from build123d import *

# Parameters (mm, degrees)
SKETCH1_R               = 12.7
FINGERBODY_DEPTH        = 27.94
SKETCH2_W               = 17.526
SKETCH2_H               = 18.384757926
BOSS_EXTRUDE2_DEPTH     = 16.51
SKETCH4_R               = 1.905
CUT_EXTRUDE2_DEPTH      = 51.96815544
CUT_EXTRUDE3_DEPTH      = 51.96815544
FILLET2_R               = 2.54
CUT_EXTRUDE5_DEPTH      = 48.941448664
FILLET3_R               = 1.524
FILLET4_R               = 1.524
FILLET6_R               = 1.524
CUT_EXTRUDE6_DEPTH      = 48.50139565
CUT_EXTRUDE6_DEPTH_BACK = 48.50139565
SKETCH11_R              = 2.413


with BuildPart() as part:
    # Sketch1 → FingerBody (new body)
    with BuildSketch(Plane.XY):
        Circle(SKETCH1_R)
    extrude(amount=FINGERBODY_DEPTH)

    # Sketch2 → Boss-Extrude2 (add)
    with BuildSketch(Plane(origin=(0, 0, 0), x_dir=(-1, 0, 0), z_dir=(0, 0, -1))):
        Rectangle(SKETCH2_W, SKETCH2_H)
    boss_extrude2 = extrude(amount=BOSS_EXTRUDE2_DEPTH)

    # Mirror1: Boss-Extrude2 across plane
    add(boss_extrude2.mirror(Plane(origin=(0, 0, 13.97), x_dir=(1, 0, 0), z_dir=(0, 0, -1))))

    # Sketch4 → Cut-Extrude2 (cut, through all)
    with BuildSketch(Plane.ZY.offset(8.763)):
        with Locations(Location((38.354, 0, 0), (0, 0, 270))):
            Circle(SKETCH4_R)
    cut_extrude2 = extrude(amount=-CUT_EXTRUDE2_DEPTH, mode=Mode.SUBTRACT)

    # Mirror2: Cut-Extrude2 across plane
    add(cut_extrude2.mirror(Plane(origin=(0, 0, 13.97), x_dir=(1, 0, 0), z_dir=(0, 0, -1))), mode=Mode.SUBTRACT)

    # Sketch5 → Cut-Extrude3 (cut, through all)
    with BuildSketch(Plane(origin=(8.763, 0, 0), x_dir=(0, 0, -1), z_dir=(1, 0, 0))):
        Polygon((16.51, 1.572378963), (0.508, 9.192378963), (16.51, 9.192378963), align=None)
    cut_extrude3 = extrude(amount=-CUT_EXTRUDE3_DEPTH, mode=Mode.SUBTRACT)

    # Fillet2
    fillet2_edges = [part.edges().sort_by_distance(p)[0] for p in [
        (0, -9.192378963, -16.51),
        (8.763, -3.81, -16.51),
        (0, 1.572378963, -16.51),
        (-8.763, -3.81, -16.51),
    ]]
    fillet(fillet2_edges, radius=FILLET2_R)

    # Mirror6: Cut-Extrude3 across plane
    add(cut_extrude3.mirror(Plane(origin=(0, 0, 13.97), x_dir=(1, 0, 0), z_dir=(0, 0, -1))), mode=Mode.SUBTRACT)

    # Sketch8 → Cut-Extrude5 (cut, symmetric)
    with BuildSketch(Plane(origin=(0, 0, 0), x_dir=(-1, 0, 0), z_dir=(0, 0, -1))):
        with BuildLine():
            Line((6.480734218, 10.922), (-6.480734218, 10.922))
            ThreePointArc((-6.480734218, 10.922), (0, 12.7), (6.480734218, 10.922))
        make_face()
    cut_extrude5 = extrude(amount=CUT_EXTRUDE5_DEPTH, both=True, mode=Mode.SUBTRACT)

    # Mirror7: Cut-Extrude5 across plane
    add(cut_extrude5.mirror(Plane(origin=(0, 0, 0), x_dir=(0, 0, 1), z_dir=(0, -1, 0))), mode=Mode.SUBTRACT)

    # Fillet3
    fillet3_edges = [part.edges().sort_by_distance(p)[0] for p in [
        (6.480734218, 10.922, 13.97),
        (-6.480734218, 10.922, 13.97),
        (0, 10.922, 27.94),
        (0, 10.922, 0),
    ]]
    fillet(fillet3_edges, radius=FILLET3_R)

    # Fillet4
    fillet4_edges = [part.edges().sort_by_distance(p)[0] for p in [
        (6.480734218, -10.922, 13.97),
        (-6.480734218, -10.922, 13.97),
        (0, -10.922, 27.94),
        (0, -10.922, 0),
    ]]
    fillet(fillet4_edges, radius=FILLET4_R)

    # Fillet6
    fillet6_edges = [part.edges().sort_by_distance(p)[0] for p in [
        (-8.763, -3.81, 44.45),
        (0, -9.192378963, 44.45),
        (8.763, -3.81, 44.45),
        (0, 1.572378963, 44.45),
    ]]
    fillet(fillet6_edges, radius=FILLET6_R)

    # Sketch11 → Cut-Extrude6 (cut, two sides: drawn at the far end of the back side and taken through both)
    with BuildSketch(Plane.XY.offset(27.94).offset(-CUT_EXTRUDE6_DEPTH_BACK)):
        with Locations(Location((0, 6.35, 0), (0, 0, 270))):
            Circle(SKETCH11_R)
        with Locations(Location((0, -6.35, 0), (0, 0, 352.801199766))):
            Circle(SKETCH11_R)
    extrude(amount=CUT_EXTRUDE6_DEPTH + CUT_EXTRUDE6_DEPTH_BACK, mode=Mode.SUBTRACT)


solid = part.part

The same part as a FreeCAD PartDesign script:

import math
import FreeCAD as App
import Part
import Sketcher
from FreeCAD import Vector
Q = App.Units.Quantity


def edges_at(feature, points):
    """Names of the edges that pass closest to the given points."""
    edges = feature.Shape.Edges
    near = lambda p: min(range(len(edges)), key=lambda i: edges[i].distToShape(Part.Vertex(*p))[0])
    return sorted({f"Edge{near(p) + 1}" for p in points})

doc = App.newDocument("Part")
body = doc.addObject("PartDesign::Body", "Body")

# Sketch on XY plane
sketch1 = body.newObject("Sketcher::SketchObject", "Sketch")
sketch1.AttachmentSupport = (doc.getObject("XY_Plane"), [""])
sketch1.MapMode = "FlatFace"
sketch1.addGeometry(Part.Circle(Vector(0, 0, 0), Vector(0, 0, 1), 13), False)
sketch1.addConstraint([
    Sketcher.Constraint("Coincident", 0, 3, -1, 1),
    Sketcher.Constraint("Diameter", 0, Q("1 in")),
])
pad1 = body.newObject("PartDesign::Pad", "Pad")
pad1.Profile = sketch1
pad1.Length = Q("1.1 in")

# Sketch on XY plane
sketch2 = body.newObject("Sketcher::SketchObject", "Sketch001")
sketch2.AttachmentSupport = (doc.getObject("XY_Plane"), [""])
sketch2.MapMode = "FlatFace"
sketch2.addGeometry([
    Part.LineSegment(Vector(9, 9, 0), Vector(9, -9, 0)),
    Part.LineSegment(Vector(9, -9, 0), Vector(-9, -9, 0)),
    Part.LineSegment(Vector(-9, -9, 0), Vector(-9, 9, 0)),
    Part.LineSegment(Vector(-9, 9, 0), Vector(9, 9, 0)),
], False)
sketch2.addConstraint([
    Sketcher.Constraint("Coincident", 0, 2, 1, 1),
    Sketcher.Constraint("Coincident", 1, 2, 2, 1),
    Sketcher.Constraint("Coincident", 2, 2, 3, 1),
    Sketcher.Constraint("Coincident", 3, 2, 0, 1),
    Sketcher.Constraint("Vertical", 0),
    Sketcher.Constraint("Horizontal", 1),
    Sketcher.Constraint("Vertical", 2),
    Sketcher.Constraint("Horizontal", 3),
    Sketcher.Constraint("Symmetric", 0, 2, 2, 2, -1, 1),
    Sketcher.Constraint("DistanceX", 1, 2, 1, 1, Q("0.69 in")),
    Sketcher.Constraint("DistanceY", 0, 2, 0, 1, 18.384758),
])
pad2 = body.newObject("PartDesign::Pad", "Pad001")
pad2.Profile = sketch2
pad2.Length = Q("0.65 in")
pad2.Reversed = True
doc.recompute()

datumplane = body.newObject("PartDesign::Plane", "DatumPlane")
datumplane.AttachmentSupport = (doc.getObject("XY_Plane"), [""])
datumplane.MapMode = "FlatFace"
datumplane.AttachmentOffset = App.Placement(Vector(0, 0, 0.55 * 25.4), App.Rotation())
mirrored = body.newObject("PartDesign::Mirrored", "Mirrored")
mirrored.Originals = [pad2]
mirrored.MirrorPlane = (datumplane, [""])
body.Tip = mirrored

# Sketch on YZ plane
sketch3 = body.newObject("Sketcher::SketchObject", "Sketch002")
sketch3.AttachmentSupport = (doc.getObject("YZ_Plane"), [""])
sketch3.MapMode = "FlatFace"
sketch3.AttachmentOffset = App.Placement(Vector(0, 0, -0.345 * 25.4), App.Rotation())
sketch3.addGeometry(Part.Circle(Vector(0, 38.4, 0), Vector(0, 0, 1), 1.9), False)
sketch3.addConstraint([
    Sketcher.Constraint("PointOnObject", 0, 3, -2),
    Sketcher.Constraint("Diameter", 0, Q("0.15 in")),
    Sketcher.Constraint("DistanceY", -1, 1, 0, 3, Q("1.51 in")),
])
pocket1 = body.newObject("PartDesign::Pocket", "Pocket")
pocket1.Profile = sketch3
pocket1.Type = "ThroughAll"
pocket1.Reversed = True
doc.recompute()

datumplane2 = body.newObject("PartDesign::Plane", "DatumPlane001")
datumplane2.AttachmentSupport = (doc.getObject("XY_Plane"), [""])
datumplane2.MapMode = "FlatFace"
datumplane2.AttachmentOffset = App.Placement(Vector(0, 0, 0.55 * 25.4), App.Rotation())
mirrored2 = body.newObject("PartDesign::Mirrored", "Mirrored001")
mirrored2.Originals = [pocket1]
mirrored2.MirrorPlane = (datumplane2, [""])
body.Tip = mirrored2

# Sketch on YZ plane
sketch4 = body.newObject("Sketcher::SketchObject", "Sketch003")
sketch4.AttachmentSupport = (doc.getObject("YZ_Plane"), [""])
sketch4.MapMode = "FlatFace"
sketch4.AttachmentOffset = App.Placement(Vector(0, 0, 0.345 * 25.4), App.Rotation())
sketch4.addGeometry([
    Part.LineSegment(Vector(9, -1, 0), Vector(2, -17, 0)),
    Part.LineSegment(Vector(2, -17, 0), Vector(9, -17, 0)),
    Part.LineSegment(Vector(9, -17, 0), Vector(9, -1, 0)),
], False)
sketch4.addConstraint([
    Sketcher.Constraint("Coincident", 0, 2, 1, 1),
    Sketcher.Constraint("Coincident", 1, 2, 2, 1),
    Sketcher.Constraint("Coincident", 2, 2, 0, 1),
    Sketcher.Constraint("Horizontal", 1),
    Sketcher.Constraint("Vertical", 2),
    Sketcher.Constraint("DistanceX", 1, 1, 1, 2, Q("0.3 in")),
    Sketcher.Constraint("DistanceY", 2, 1, 2, 2, Q("0.63 in")),
    Sketcher.Constraint("DistanceY", 0, 2, -1, 1, Q("0.65 in")),
    Sketcher.Constraint("DistanceX", -1, 1, 0, 2, 1.572379),
])
pocket2 = body.newObject("PartDesign::Pocket", "Pocket001")
pocket2.Profile = sketch4
pocket2.Type = "ThroughAll"
doc.recompute()

fillet = body.newObject("PartDesign::Fillet", "Fillet")
fillet.Base = (pocket2, edges_at(pocket2, [
    (0, -9.192, -16.51),
    (8.763, -3.81, -16.51),
    (0, 1.572, -16.51),
    (-8.763, -3.81, -16.51),
]))
fillet.Radius = Q("0.1 in")
doc.recompute()

datumplane3 = body.newObject("PartDesign::Plane", "DatumPlane002")
datumplane3.AttachmentSupport = (doc.getObject("XY_Plane"), [""])
datumplane3.MapMode = "FlatFace"
datumplane3.AttachmentOffset = App.Placement(Vector(0, 0, 0.55 * 25.4), App.Rotation())
mirrored3 = body.newObject("PartDesign::Mirrored", "Mirrored002")
mirrored3.Originals = [pocket2]
mirrored3.MirrorPlane = (datumplane3, [""])
body.Tip = mirrored3

# Sketch on XY plane
sketch5 = body.newObject("Sketcher::SketchObject", "Sketch004")
sketch5.AttachmentSupport = (doc.getObject("XY_Plane"), [""])
sketch5.MapMode = "FlatFace"
sketch5.addGeometry([
    Part.LineSegment(Vector(6, 11, 0), Vector(-6, 11, 0)),
    Part.ArcOfCircle(Part.Circle(Vector(0, 0, 0), Vector(0, 0, 1), 13), math.radians(59), math.radians(121)),
], False)
sketch5.addConstraint([
    Sketcher.Constraint("Coincident", 0, 1, 1, 1),
    Sketcher.Constraint("Coincident", 1, 2, 0, 2),
    Sketcher.Constraint("Horizontal", 0),
    Sketcher.Constraint("Coincident", 1, 3, -1, 1),
    Sketcher.Constraint("Radius", 1, Q("0.5 in")),
    Sketcher.Constraint("DistanceY", -1, 1, 0, 1, Q("0.43 in")),
])
pocket3 = body.newObject("PartDesign::Pocket", "Pocket002")
pocket3.Profile = sketch5
pocket3.Length = 97.882897
pocket3.Midplane = True
doc.recompute()

mirrored4 = body.newObject("PartDesign::Mirrored", "Mirrored003")
mirrored4.Originals = [pocket3]
mirrored4.MirrorPlane = (doc.getObject("XZ_Plane"), [""])
body.Tip = mirrored4
doc.recompute()

fillet2 = body.newObject("PartDesign::Fillet", "Fillet001")
fillet2.Base = (mirrored4, edges_at(mirrored4, [
    (6.481, 10.922, 13.97),
    (-6.481, 10.922, 13.97),
    (0, 10.922, 27.94),
    (0, 10.922, 0),
]))
fillet2.Radius = Q("0.06 in")
doc.recompute()

fillet3 = body.newObject("PartDesign::Fillet", "Fillet002")
fillet3.Base = (fillet2, edges_at(fillet2, [
    (6.481, -10.922, 13.97),
    (-6.481, -10.922, 13.97),
    (0, -10.922, 27.94),
    (0, -10.922, 0),
]))
fillet3.Radius = Q("0.06 in")
doc.recompute()

fillet4 = body.newObject("PartDesign::Fillet", "Fillet003")
fillet4.Base = (fillet3, edges_at(fillet3, [
    (-8.763, -3.81, 44.45),
    (0, -9.192, 44.45),
    (8.763, -3.81, 44.45),
    (0, 1.572, 44.45),
]))
fillet4.Radius = Q("0.06 in")

# Sketch on XY plane
sketch6 = body.newObject("Sketcher::SketchObject", "Sketch005")
sketch6.AttachmentSupport = (doc.getObject("XY_Plane"), [""])
sketch6.MapMode = "FlatFace"
sketch6.AttachmentOffset = App.Placement(Vector(0, 0, 1.1 * 25.4), App.Rotation())
sketch6.addGeometry([
    Part.Circle(Vector(0, 6.3, 0), Vector(0, 0, 1), 2.4),
    Part.Circle(Vector(0, -6.3, 0), Vector(0, 0, 1), 2.4),
], False)
sketch6.addConstraint([
    Sketcher.Constraint("Equal", 0, 1),
    Sketcher.Constraint("Symmetric", 0, 3, 1, 3, -1, 1),
    Sketcher.Constraint("PointOnObject", 0, 3, -2),
    Sketcher.Constraint("Diameter", 0, Q("0.19 in")),
    Sketcher.Constraint("DistanceY", 1, 3, 0, 3, Q("0.5 in")),
])
pocket4 = body.newObject("PartDesign::Pocket", "Pocket003")
pocket4.Profile = sketch6
pocket4.Type = "ThroughAll"
pocket4.Midplane = True

doc.recompute()
